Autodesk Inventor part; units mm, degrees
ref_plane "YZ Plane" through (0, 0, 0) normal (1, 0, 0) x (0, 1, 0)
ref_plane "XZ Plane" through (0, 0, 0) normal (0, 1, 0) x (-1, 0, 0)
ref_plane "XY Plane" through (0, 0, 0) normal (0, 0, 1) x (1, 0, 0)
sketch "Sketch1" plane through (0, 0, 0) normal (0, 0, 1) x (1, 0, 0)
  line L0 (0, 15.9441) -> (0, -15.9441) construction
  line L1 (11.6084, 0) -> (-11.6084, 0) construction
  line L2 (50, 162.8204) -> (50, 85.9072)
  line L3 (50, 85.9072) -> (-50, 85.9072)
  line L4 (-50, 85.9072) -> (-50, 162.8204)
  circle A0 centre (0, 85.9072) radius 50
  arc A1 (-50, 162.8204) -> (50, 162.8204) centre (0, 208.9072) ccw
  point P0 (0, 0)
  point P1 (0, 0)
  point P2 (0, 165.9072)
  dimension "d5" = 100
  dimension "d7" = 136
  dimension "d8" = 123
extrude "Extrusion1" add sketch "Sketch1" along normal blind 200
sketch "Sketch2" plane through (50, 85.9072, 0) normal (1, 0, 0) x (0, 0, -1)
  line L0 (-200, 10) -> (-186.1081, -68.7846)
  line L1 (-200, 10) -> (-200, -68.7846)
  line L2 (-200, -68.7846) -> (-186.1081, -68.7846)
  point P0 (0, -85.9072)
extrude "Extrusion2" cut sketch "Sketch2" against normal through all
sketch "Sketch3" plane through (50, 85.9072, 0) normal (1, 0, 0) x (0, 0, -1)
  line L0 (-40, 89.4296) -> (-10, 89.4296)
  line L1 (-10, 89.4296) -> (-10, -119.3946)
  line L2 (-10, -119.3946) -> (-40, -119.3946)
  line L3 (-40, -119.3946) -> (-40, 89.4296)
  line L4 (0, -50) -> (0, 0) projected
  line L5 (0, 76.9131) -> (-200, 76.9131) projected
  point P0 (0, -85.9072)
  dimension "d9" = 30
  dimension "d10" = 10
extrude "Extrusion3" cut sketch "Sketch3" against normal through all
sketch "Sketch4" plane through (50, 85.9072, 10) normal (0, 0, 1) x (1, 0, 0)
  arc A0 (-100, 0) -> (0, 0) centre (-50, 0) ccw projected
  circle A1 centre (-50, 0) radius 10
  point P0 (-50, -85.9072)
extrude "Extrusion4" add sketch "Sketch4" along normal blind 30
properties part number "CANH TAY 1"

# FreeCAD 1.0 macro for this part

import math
import FreeCAD as App
import Part
import Sketcher
Q = App.Units.Quantity

doc = App.newDocument("Part")
params = doc.addObject("Spreadsheet::Sheet", "Params")
for row, (alias, value) in enumerate([
    ("sketch1_radius", "68 mm"),
    ("sketch1_radius2", "50 mm"),
    ("pad1_length", "200 mm"),
    ("sketch2_length", "80 mm"),
    ("sketch3_height", "30 mm"),
    ("sketch4_diameter", "20 mm"),
    ("pad2_length", "30 mm"),
], start=1):
    params.set(f"A{row}", alias)
    params.set(f"B{row}", "=" + value)
    params.setAlias(f"B{row}", alias)

body = doc.addObject("PartDesign::Body", "Body")
body.AllowCompound = True

# Sketch on XY plane
sketch1 = body.newObject("Sketcher::SketchObject", "Sketch")
sketch1.AttachmentSupport = (doc.getObject("XY_Plane"), [""])
sketch1.MapMode = "FlatFace"
sketch1.addGeometry([
    Part.LineSegment(App.Vector(50, 86, 0), App.Vector(50, 163, 0)),
    Part.ArcOfCircle(Part.Circle(App.Vector(0, 209, 0), App.Vector(0, 0, 1), 68), math.radians(-137), math.radians(-43)),
    Part.LineSegment(App.Vector(-50, 163, 0), App.Vector(-50, 86, 0)),
    Part.ArcOfCircle(Part.Circle(App.Vector(0, 86, 0), App.Vector(0, 0, 1), 50), math.radians(180), math.radians(360)),
], False)
sketch1.addConstraint([
    Sketcher.Constraint("Coincident", 0, 2, 1, 2),
    Sketcher.Constraint("Coincident", 1, 1, 2, 1),
    Sketcher.Constraint("Tangent", 2, 2, 3, 1),
    Sketcher.Constraint("Tangent", 3, 2, 0, 1),
    Sketcher.Constraint("Vertical", 0),
    Sketcher.Constraint("Vertical", 2),
    Sketcher.Constraint("Symmetric", 0, 2, 1, 1, -2),
    Sketcher.Constraint("Radius", 1, 68.0),
    Sketcher.Constraint("Radius", 3, 50.0),
    Sketcher.Constraint("DistanceY", 3, 3, 1, 3, 123.0),
    Sketcher.Constraint("DistanceY", -1, 1, 1, 3, 208.9072),
])
sketch1.setExpression("Constraints[7]", "Params.sketch1_radius")
sketch1.setExpression("Constraints[8]", "Params.sketch1_radius2")
pad1 = body.newObject("PartDesign::Pad", "Pad")
pad1.Profile = sketch1
pad1.setExpression("Length", "Params.pad1_length")

# Sketch on YZ plane
sketch2 = body.newObject("Sketcher::SketchObject", "Sketch001")
sketch2.AttachmentSupport = (doc.getObject("YZ_Plane"), [""])
sketch2.MapMode = "FlatFace"
sketch2.AttachmentOffset = App.Placement(App.Vector(0, 0, 50), App.Rotation())
sketch2.addGeometry([
    Part.LineSegment(App.Vector(17, 186, 0), App.Vector(96, 200, 0)),
    Part.LineSegment(App.Vector(96, 200, 0), App.Vector(17, 200, 0)),
    Part.LineSegment(App.Vector(17, 200, 0), App.Vector(17, 186, 0)),
], False)
sketch2.addConstraint([
    Sketcher.Constraint("Coincident", 0, 2, 1, 1),
    Sketcher.Constraint("Coincident", 1, 2, 2, 1),
    Sketcher.Constraint("Coincident", 2, 2, 0, 1),
    Sketcher.Constraint("Horizontal", 1),
    Sketcher.Constraint("Vertical", 2),
    Sketcher.Constraint("Angle", 0, Q("10 deg")),
    Sketcher.Constraint("Distance", 0, 80.0),
    Sketcher.Constraint("DistanceY", -1, 1, 0, 2, 200.0),
    Sketcher.Constraint("DistanceX", -1, 1, 0, 2, 95.9072),
])
sketch2.setExpression("Constraints[6]", "Params.sketch2_length")
pocket1 = body.newObject("PartDesign::Pocket", "Pocket")
pocket1.Profile = sketch2
pocket1.Type = "ThroughAll"

# Sketch on YZ plane
sketch3 = body.newObject("Sketcher::SketchObject", "Sketch002")
sketch3.AttachmentSupport = (doc.getObject("YZ_Plane"), [""])
sketch3.MapMode = "FlatFace"
sketch3.AttachmentOffset = App.Placement(App.Vector(0, 0, 50), App.Rotation())
sketch3.addGeometry([
    Part.LineSegment(App.Vector(175, 10, 0), App.Vector(175, 40, 0)),
    Part.LineSegment(App.Vector(175, 40, 0), App.Vector(-33, 40, 0)),
    Part.LineSegment(App.Vector(-33, 40, 0), App.Vector(-33, 10, 0)),
    Part.LineSegment(App.Vector(-33, 10, 0), App.Vector(175, 10, 0)),
], False)
sketch3.addConstraint([
    Sketcher.Constraint("Coincident", 0, 2, 1, 1),
    Sketcher.Constraint("Coincident", 1, 2, 2, 1),
    Sketcher.Constraint("Coincident", 2, 2, 3, 1),
    Sketcher.Constraint("Coincident", 3, 2, 0, 1),
    Sketcher.Constraint("Vertical", 0),
    Sketcher.Constraint("Horizontal", 1),
    Sketcher.Constraint("Vertical", 2),
    Sketcher.Constraint("Horizontal", 3),
    Sketcher.Constraint("DistanceY", 0, 1, 0, 2, 30.0),
    Sketcher.Constraint("DistanceY", -1, 1, 2, 2, 10.0),
    Sketcher.Constraint("DistanceX", 1, 2, 1, 1, 208.8242),
    Sketcher.Constraint("DistanceX", -1, 1, 0, 2, 175.3368),
])
sketch3.setExpression("Constraints[8]", "Params.sketch3_height")
pocket2 = body.newObject("PartDesign::Pocket", "Pocket001")
pocket2.Profile = sketch3
pocket2.Type = "ThroughAll"

# Sketch on XY plane
sketch4 = body.newObject("Sketcher::SketchObject", "Sketch003")
sketch4.AttachmentSupport = (doc.getObject("XY_Plane"), [""])
sketch4.MapMode = "FlatFace"
sketch4.AttachmentOffset = App.Placement(App.Vector(0, 0, 10), App.Rotation())
sketch4.addGeometry(Part.Circle(App.Vector(0, 86, 0), App.Vector(0, 0, 1), 10), False)
sketch4.addConstraint([
    Sketcher.Constraint("PointOnObject", 0, 3, -2),
    Sketcher.Constraint("Diameter", 0, 20.0),
    Sketcher.Constraint("DistanceY", -1, 1, 0, 3, 85.9072),
])
sketch4.setExpression("Constraints[1]", "Params.sketch4_diameter")
pad2 = body.newObject("PartDesign::Pad", "Pad001")
pad2.Profile = sketch4
pad2.setExpression("Length", "Params.pad2_length")

doc.recompute()
